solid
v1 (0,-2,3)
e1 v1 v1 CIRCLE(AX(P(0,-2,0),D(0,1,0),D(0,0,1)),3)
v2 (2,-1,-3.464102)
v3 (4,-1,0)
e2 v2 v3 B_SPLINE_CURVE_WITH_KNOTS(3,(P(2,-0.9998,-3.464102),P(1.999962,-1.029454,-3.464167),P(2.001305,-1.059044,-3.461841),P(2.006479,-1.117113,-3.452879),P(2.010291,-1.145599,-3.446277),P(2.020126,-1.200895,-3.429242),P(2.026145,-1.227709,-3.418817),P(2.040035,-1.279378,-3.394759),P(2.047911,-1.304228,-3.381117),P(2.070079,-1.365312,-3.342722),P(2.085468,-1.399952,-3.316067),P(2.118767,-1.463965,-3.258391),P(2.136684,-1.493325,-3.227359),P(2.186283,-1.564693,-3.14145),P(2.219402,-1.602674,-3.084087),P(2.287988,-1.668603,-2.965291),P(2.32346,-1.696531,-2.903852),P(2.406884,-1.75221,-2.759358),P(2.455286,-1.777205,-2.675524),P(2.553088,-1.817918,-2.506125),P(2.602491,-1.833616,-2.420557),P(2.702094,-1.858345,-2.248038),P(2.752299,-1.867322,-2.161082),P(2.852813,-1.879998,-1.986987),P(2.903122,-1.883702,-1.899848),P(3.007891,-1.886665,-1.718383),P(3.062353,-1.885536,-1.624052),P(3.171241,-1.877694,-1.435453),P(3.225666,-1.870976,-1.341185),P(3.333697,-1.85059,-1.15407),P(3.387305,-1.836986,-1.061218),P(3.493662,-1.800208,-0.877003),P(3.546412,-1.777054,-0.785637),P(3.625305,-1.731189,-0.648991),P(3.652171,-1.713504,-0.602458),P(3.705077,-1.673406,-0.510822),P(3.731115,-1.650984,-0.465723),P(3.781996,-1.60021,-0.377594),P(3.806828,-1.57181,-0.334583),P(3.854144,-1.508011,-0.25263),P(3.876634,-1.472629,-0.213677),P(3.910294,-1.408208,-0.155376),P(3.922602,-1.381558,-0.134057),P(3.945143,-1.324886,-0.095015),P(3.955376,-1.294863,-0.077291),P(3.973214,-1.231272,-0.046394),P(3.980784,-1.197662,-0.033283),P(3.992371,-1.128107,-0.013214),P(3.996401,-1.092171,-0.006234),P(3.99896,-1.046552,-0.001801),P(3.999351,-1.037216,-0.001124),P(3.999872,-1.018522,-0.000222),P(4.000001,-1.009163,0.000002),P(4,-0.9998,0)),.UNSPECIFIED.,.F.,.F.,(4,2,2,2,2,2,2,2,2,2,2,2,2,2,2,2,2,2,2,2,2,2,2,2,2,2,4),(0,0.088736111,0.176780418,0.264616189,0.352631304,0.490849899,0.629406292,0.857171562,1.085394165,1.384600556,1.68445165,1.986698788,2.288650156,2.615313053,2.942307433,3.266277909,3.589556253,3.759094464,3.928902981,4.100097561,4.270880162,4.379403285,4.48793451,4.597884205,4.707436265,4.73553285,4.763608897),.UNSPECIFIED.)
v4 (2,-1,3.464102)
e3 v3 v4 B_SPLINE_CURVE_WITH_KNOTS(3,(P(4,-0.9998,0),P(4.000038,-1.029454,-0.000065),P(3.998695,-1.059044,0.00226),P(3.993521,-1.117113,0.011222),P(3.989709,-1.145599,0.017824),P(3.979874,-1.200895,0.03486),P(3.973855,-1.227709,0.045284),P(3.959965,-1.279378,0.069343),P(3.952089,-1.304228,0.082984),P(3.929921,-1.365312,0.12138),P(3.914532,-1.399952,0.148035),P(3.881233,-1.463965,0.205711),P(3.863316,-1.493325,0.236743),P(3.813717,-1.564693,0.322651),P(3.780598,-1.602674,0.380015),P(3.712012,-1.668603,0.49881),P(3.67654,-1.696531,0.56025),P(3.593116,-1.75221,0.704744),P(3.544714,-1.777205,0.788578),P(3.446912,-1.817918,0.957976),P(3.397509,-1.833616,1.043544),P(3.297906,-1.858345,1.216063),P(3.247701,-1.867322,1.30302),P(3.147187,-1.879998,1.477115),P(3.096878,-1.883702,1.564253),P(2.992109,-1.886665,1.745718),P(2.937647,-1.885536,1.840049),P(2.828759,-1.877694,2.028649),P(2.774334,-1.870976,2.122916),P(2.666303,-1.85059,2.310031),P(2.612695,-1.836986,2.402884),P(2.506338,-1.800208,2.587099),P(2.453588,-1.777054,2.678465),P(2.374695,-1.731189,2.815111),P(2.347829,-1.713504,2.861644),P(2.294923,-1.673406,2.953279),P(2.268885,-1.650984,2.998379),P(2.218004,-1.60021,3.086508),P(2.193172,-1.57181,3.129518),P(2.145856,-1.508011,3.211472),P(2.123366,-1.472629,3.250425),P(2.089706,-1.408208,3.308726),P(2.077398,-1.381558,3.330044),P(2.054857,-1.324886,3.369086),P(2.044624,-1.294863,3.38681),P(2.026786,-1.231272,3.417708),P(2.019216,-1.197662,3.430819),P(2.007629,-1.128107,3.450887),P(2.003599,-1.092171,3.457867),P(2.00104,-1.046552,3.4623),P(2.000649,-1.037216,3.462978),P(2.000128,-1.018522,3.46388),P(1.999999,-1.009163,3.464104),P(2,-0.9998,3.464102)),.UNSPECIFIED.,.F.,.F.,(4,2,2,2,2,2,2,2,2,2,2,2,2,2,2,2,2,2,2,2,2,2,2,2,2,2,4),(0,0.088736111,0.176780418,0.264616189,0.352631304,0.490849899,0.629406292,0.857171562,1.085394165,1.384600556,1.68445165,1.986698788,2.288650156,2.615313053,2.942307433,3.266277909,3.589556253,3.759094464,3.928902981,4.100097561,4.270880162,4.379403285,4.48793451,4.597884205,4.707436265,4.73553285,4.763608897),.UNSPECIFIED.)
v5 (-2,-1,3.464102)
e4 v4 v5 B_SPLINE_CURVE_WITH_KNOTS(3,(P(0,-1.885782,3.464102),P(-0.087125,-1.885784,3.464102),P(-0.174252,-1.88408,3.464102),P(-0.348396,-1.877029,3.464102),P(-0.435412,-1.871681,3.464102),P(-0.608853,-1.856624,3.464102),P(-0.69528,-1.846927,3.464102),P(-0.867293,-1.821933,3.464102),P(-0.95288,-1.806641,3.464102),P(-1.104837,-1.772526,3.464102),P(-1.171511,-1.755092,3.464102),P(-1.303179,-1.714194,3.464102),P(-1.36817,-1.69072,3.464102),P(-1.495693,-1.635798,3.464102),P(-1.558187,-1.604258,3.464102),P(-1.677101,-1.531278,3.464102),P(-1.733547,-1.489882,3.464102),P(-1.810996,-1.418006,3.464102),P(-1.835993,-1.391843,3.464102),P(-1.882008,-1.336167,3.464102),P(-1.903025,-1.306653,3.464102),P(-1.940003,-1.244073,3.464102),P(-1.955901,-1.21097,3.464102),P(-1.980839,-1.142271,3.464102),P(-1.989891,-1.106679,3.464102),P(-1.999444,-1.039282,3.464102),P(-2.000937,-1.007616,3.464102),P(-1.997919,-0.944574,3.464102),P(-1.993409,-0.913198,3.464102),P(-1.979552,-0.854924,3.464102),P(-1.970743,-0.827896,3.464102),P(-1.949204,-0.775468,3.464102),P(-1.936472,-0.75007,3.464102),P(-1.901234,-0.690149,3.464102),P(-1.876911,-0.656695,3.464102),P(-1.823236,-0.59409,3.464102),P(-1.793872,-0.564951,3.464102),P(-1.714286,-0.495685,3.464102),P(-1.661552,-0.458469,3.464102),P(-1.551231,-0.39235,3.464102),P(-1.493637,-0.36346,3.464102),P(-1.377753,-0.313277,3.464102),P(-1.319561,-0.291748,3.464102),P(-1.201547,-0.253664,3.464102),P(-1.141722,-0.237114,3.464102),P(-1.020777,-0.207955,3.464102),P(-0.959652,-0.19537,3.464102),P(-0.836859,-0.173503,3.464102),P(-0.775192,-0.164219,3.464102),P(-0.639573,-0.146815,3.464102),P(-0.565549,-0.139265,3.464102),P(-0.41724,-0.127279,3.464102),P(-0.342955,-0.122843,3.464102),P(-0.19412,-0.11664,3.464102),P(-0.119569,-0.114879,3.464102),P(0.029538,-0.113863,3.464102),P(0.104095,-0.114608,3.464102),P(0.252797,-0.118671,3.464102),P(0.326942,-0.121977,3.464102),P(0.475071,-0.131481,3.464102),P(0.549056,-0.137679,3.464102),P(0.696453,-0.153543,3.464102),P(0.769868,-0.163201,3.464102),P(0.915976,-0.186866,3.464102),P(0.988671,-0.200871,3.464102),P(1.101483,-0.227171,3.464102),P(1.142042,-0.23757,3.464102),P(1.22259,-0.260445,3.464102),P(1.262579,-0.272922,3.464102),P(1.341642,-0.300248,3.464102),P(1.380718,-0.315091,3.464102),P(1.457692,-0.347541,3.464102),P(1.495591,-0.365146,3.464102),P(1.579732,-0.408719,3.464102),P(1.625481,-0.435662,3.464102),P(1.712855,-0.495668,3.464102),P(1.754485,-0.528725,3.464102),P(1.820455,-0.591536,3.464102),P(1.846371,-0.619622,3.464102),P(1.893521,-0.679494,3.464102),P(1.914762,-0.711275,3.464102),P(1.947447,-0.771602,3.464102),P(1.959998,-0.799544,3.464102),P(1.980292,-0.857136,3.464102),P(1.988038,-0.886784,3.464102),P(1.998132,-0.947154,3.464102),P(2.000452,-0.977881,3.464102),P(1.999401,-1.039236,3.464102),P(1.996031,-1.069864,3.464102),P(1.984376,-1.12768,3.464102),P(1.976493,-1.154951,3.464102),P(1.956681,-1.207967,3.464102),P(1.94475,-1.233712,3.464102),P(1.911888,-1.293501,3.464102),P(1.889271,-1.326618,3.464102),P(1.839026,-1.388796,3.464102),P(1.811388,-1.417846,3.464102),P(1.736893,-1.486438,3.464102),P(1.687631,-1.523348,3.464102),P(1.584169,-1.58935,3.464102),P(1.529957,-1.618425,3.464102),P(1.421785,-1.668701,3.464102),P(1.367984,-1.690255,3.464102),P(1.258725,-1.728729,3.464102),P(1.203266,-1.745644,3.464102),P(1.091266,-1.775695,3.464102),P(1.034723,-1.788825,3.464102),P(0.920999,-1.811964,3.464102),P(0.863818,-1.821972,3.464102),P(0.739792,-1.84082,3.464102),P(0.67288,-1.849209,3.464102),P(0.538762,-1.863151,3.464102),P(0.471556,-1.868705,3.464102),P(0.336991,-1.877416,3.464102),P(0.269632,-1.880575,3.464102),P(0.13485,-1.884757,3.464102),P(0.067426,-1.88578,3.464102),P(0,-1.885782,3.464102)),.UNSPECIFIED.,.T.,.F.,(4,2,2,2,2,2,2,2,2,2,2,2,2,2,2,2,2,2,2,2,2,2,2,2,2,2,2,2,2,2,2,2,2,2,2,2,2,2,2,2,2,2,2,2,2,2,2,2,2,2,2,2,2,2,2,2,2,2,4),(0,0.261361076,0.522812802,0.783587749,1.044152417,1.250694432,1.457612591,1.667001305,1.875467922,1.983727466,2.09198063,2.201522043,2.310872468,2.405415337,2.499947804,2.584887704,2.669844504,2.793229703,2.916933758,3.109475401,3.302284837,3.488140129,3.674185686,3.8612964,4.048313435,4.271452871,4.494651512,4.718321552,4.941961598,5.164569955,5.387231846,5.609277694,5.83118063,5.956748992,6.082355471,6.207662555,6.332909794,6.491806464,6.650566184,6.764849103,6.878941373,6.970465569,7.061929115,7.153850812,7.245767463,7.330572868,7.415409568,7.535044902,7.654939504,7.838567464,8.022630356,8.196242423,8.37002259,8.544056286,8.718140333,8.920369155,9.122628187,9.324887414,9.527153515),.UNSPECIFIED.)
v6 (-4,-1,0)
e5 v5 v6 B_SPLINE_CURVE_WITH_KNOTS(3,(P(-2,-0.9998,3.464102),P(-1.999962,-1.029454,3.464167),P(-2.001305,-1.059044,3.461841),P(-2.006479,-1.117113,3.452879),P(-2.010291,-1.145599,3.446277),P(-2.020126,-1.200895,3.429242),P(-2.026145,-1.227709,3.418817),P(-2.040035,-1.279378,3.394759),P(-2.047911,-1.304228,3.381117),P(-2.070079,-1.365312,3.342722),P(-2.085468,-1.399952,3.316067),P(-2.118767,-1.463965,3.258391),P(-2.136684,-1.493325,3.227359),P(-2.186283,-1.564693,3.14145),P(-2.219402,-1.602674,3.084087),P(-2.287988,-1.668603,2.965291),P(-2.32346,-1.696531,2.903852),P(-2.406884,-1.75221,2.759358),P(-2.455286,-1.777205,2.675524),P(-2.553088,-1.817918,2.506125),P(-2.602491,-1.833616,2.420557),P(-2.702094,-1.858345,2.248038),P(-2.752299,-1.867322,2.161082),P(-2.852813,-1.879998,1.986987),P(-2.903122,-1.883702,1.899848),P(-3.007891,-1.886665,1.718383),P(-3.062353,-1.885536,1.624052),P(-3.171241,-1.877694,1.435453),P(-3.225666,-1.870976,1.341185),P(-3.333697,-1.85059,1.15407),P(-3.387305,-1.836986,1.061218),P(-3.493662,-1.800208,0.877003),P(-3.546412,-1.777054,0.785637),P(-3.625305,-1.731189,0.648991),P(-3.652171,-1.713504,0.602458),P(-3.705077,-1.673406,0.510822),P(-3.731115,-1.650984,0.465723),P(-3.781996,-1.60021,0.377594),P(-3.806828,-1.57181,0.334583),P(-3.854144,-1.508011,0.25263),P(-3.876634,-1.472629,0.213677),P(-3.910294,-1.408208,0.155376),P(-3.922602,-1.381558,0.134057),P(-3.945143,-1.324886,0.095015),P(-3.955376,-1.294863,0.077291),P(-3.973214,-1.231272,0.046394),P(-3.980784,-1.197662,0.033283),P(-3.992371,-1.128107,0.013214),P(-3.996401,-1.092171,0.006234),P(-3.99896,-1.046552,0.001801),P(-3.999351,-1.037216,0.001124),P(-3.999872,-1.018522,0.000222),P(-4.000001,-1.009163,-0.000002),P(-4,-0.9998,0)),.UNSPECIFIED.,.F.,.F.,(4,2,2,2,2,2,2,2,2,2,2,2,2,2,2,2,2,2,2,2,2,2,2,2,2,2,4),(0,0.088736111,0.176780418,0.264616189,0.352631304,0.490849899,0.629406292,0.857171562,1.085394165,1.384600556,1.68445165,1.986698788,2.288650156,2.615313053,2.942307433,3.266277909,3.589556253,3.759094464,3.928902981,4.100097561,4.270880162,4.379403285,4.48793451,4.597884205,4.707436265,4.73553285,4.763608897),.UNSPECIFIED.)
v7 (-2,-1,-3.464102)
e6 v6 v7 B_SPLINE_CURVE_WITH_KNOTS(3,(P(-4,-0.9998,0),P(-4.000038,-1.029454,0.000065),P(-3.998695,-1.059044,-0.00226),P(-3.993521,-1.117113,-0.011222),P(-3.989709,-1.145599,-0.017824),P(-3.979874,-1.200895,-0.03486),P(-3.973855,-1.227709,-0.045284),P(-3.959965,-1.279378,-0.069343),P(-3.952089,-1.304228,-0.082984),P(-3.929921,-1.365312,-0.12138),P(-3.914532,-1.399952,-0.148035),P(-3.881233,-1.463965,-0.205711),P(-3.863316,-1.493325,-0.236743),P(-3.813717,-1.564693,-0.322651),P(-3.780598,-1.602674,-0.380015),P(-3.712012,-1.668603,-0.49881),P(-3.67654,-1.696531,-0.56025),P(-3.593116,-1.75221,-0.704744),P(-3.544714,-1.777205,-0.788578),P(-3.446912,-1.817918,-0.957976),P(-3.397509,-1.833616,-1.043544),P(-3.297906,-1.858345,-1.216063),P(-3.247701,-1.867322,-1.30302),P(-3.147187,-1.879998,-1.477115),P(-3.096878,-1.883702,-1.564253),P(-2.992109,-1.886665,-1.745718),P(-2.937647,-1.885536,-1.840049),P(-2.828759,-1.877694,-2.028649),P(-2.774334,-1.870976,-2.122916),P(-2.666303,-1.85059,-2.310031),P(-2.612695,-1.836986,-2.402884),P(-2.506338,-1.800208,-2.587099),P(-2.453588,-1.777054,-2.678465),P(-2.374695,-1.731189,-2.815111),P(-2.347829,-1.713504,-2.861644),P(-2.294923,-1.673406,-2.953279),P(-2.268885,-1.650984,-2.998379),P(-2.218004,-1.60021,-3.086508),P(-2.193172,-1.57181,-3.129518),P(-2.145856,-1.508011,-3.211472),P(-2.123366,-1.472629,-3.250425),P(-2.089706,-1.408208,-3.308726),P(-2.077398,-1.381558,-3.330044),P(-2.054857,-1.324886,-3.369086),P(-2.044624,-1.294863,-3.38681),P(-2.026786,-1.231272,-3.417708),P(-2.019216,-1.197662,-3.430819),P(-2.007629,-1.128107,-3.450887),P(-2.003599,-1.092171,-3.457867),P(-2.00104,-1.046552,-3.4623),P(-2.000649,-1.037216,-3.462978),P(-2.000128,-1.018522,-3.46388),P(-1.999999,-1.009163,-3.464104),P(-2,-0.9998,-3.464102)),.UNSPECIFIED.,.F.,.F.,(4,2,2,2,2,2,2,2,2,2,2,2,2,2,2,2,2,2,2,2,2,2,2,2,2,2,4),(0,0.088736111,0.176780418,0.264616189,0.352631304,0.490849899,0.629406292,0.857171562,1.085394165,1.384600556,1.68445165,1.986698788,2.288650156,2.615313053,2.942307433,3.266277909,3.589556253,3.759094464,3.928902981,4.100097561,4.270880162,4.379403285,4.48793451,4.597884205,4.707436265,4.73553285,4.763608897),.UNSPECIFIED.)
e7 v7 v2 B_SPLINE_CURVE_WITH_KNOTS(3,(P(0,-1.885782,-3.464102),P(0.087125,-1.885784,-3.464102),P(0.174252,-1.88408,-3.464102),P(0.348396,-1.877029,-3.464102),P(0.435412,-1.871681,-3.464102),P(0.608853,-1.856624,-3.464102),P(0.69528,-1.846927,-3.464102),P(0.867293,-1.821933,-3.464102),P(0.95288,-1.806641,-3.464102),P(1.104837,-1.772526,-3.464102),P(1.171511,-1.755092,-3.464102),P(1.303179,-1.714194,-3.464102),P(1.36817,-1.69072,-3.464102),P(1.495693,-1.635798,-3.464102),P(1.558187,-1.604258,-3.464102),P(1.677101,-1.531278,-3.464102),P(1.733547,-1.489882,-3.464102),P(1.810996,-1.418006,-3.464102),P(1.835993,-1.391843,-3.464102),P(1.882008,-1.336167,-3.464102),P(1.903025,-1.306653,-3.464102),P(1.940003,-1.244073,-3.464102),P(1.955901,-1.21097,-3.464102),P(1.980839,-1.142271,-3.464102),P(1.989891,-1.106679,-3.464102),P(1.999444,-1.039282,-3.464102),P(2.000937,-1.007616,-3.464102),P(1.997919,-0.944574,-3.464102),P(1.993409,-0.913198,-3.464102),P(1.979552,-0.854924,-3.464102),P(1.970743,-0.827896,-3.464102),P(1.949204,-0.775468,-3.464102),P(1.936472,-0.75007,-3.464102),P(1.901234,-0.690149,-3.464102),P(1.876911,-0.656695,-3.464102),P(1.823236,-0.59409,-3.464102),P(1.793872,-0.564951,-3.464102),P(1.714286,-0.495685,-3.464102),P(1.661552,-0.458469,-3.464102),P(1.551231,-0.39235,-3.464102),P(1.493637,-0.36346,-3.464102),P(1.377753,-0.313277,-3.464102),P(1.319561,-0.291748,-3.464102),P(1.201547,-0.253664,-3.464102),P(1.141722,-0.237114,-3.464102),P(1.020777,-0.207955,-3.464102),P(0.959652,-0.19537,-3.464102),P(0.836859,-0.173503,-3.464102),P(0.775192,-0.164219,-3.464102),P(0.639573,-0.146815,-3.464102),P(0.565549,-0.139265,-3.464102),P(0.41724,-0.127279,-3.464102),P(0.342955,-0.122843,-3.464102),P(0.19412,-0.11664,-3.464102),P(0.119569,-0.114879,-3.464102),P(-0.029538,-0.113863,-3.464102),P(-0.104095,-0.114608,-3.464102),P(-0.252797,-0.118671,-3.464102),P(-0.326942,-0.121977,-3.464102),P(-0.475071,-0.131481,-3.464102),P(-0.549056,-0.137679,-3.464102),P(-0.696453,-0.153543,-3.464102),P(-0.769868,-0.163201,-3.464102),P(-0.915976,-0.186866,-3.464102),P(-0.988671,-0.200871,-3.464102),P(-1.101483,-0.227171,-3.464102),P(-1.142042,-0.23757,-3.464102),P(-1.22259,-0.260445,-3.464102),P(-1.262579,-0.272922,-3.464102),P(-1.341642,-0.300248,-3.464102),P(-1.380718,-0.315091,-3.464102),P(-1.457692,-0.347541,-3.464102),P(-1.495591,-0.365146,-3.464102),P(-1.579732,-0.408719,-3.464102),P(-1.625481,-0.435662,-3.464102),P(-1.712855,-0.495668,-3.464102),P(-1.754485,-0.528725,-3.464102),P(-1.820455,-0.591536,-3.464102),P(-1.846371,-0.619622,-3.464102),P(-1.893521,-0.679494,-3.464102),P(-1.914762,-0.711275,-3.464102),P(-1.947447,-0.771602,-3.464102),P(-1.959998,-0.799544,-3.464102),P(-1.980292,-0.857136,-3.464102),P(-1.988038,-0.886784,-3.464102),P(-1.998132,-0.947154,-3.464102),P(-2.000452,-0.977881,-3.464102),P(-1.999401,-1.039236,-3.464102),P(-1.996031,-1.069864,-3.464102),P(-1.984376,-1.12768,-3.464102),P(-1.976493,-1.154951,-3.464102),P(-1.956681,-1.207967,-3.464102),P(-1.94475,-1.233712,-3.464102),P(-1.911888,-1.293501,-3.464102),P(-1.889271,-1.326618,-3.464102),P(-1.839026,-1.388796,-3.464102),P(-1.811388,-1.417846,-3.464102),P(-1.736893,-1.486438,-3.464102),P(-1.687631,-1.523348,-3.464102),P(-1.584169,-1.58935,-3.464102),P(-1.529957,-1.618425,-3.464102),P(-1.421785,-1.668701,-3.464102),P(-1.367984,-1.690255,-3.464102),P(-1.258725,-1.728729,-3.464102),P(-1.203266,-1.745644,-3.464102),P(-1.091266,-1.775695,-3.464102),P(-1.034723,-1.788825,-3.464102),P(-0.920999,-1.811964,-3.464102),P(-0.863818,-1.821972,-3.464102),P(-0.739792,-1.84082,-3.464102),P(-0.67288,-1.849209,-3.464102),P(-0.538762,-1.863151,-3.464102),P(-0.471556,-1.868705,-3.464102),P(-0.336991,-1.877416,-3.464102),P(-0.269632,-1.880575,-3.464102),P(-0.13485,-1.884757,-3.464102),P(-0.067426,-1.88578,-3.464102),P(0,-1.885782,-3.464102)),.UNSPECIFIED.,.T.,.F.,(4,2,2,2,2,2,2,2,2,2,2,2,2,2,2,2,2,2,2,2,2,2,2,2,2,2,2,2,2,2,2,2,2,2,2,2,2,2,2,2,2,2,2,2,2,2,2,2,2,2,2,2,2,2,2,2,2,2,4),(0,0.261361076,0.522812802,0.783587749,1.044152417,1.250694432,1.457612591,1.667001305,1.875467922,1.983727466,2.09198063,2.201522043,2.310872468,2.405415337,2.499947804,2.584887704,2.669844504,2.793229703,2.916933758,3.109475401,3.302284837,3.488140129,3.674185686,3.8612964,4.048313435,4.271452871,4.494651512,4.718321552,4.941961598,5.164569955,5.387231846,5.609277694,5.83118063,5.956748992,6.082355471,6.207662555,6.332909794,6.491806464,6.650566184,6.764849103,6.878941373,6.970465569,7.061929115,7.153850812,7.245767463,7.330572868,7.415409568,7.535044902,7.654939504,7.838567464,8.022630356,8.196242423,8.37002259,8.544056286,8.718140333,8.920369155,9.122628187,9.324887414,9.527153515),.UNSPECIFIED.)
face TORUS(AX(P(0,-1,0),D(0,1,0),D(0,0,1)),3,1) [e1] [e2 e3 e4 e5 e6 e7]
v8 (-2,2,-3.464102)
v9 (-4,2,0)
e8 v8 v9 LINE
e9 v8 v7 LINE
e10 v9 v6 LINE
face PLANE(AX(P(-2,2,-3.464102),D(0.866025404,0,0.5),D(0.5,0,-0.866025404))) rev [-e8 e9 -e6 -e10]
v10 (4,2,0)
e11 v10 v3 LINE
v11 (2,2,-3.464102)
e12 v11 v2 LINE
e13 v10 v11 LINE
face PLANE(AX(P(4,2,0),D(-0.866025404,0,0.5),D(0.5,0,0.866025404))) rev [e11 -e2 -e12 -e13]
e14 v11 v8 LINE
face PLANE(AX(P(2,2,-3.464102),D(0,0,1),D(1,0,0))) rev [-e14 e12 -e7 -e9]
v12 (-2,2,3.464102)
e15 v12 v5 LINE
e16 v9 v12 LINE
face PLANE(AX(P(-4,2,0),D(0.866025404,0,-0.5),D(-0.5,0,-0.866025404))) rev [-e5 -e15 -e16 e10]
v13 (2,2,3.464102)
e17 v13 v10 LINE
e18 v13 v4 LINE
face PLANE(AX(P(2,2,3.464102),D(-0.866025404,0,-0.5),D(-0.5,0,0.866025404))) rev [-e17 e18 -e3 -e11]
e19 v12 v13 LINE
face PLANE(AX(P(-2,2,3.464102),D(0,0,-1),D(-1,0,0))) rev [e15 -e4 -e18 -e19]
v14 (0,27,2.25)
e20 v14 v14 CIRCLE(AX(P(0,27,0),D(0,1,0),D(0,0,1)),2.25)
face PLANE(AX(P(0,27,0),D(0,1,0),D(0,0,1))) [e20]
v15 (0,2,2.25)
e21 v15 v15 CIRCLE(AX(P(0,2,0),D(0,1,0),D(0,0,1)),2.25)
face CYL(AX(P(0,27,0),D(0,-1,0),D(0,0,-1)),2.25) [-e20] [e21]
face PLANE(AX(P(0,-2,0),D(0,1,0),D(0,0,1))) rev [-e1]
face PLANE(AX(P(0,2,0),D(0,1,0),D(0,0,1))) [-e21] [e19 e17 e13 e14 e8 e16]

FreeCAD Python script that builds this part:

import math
import FreeCAD as App
import Part
import Sketcher
Q = App.Units.Quantity


def add_polygon(sketch, points):
    """Adds a closed chain of lines whose ends are joined by coincident constraints."""
    first, n = sketch.GeometryCount, len(points)
    for a, b in zip(points, points[1:] + points[:1]):
        sketch.addGeometry(Part.LineSegment(App.Vector(*a, 0), App.Vector(*b, 0)), False)
    for i in range(n):
        sketch.addConstraint(Sketcher.Constraint("Coincident", first + i, 2, first + (i + 1) % n, 1))

doc = App.newDocument("Part")
params = doc.addObject("Spreadsheet::Sheet", "Params")
for row, (alias, value) in enumerate([
    ("sketch1_width", "4 mm"),
    ("sketch1_length", "4 mm"),
    ("pad1_length", "4 mm"),
    ("sketch2_diameter", "4.5 mm"),
    ("pad2_length", "25 mm"),
    ("sketch3_radius", "1 mm"),
    ("groove_angle", "360 deg"),
], start=1):
    params.set(f"A{row}", alias)
    params.set(f"B{row}", "=" + value)
    params.setAlias(f"B{row}", alias)

body = doc.addObject("PartDesign::Body", "Body")

# Sketch on XZ plane
sketch1 = body.newObject("Sketcher::SketchObject", "Sketch")
sketch1.AttachmentSupport = (doc.getObject("XZ_Plane"), [""])
sketch1.MapMode = "FlatFace"
add_polygon(sketch1, [(4, 0), (2, -3.5), (-2, -3.5), (-4, 0), (-2, 3.5), (2, 3.5)])  # lines 0-5
sketch1.addConstraint([
    Sketcher.Constraint("Horizontal", 1),
    Sketcher.Constraint("Horizontal", 4),
    Sketcher.Constraint("Symmetric", 0, 2, 3, 2, -1, 1),
    Sketcher.Constraint("Symmetric", 2, 2, 5, 2, -1, 1),
    Sketcher.Constraint("PointOnObject", 2, 2, -1),
    Sketcher.Constraint("Parallel", 2, 5),
    Sketcher.Constraint("Vertical", 1, 2, 3, 2),
    Sketcher.Constraint("DistanceX", 1, 2, 1, 1, Q("4 mm")),
    Sketcher.Constraint("Angle", 0, Q("-120 deg")),
    Sketcher.Constraint("Distance", 0, Q("4 mm")),
])
sketch1.setExpression("Constraints[13]", "Params.sketch1_width")
sketch1.setExpression("Constraints[15]", "Params.sketch1_length")
pad1 = body.newObject("PartDesign::Pad", "Pad")
pad1.Profile = sketch1
pad1.setExpression("Length", "Params.pad1_length")
pad1.Midplane = True

# Sketch on XZ plane
sketch2 = body.newObject("Sketcher::SketchObject", "Sketch001")
sketch2.AttachmentSupport = (doc.getObject("XZ_Plane"), [""])
sketch2.MapMode = "FlatFace"
sketch2.AttachmentOffset = App.Placement(App.Vector(0, 0, -2), App.Rotation())
sketch2.addGeometry(Part.Circle(App.Vector(0, 0, 0), App.Vector(0, 0, 1), 2.2), False)
sketch2.addConstraint([
    Sketcher.Constraint("Coincident", 0, 3, -1, 1),
    Sketcher.Constraint("Diameter", 0, Q("4.5 mm")),
])
sketch2.setExpression("Constraints[1]", "Params.sketch2_diameter")
pad2 = body.newObject("PartDesign::Pad", "Pad001")
pad2.Profile = sketch2
pad2.setExpression("Length", "Params.pad2_length")
pad2.Reversed = True

# Sketch on XY plane
sketch3 = body.newObject("Sketcher::SketchObject", "Sketch002")
sketch3.AttachmentSupport = (doc.getObject("XY_Plane"), [""])
sketch3.MapMode = "FlatFace"
sketch3.addGeometry([
    Part.LineSegment(App.Vector(3, -2, 0), App.Vector(2.25, -2, 0)),  # 0
    Part.LineSegment(App.Vector(2.25, -2, 0), App.Vector(3.35, -3.27, 0)),  # 1
    Part.LineSegment(App.Vector(3.35, -3.27, 0), App.Vector(5.59, -2.27, 0)),  # 2
    Part.LineSegment(App.Vector(5.59, -2.27, 0), App.Vector(4, -0.81, 0)),  # 3
    Part.LineSegment(App.Vector(4, -0.81, 0), App.Vector(4, -1, 0)),  # 4
    Part.ArcOfCircle(Part.Circle(App.Vector(3, -1, 0), App.Vector(0, 0, 1), 1), math.radians(-90), math.radians(0)),  # 5
], False)
sketch3.addConstraint([
    Sketcher.Constraint("Coincident", 0, 2, 1, 1),
    Sketcher.Constraint("Coincident", 1, 2, 2, 1),
    Sketcher.Constraint("Coincident", 2, 2, 3, 1),
    Sketcher.Constraint("Coincident", 3, 2, 4, 1),
    Sketcher.Constraint("Tangent", 4, 2, 5, 2),
    Sketcher.Constraint("Tangent", 5, 1, 0, 1),
    Sketcher.Constraint("Horizontal", 0),
    Sketcher.Constraint("Vertical", 4),
    Sketcher.Constraint("Radius", 5, Q("1 mm")),
    Sketcher.Constraint("DistanceX", -1, 1, 5, 3, Q("3 mm")),
    Sketcher.Constraint("DistanceY", 5, 3, -1, 1, Q("1 mm")),
    Sketcher.Constraint("Distance", 1, Q("1.683748 mm")),
    Sketcher.Constraint("Distance", 3, Q("2.159069 mm")),
    Sketcher.Constraint("DistanceX", 0, 2, 0, 1, Q("0.751103 mm")),
    Sketcher.Constraint("DistanceY", 4, 2, 4, 1, Q("0.187277 mm")),
    Sketcher.Constraint("DistanceX", -1, 1, 2, 2, Q("5.594352 mm")),
    Sketcher.Constraint("DistanceX", 1, 2, 2, 2, Q("2.243579 mm")),
])
sketch3.setExpression("Constraints[8]", "Params.sketch3_radius")
groove = body.newObject("PartDesign::Groove", "Groove")
groove.Profile = sketch3
groove.ReferenceAxis = (sketch3, ["V_Axis"])
groove.setExpression("Angle", "Params.groove_angle")

doc.recompute()
